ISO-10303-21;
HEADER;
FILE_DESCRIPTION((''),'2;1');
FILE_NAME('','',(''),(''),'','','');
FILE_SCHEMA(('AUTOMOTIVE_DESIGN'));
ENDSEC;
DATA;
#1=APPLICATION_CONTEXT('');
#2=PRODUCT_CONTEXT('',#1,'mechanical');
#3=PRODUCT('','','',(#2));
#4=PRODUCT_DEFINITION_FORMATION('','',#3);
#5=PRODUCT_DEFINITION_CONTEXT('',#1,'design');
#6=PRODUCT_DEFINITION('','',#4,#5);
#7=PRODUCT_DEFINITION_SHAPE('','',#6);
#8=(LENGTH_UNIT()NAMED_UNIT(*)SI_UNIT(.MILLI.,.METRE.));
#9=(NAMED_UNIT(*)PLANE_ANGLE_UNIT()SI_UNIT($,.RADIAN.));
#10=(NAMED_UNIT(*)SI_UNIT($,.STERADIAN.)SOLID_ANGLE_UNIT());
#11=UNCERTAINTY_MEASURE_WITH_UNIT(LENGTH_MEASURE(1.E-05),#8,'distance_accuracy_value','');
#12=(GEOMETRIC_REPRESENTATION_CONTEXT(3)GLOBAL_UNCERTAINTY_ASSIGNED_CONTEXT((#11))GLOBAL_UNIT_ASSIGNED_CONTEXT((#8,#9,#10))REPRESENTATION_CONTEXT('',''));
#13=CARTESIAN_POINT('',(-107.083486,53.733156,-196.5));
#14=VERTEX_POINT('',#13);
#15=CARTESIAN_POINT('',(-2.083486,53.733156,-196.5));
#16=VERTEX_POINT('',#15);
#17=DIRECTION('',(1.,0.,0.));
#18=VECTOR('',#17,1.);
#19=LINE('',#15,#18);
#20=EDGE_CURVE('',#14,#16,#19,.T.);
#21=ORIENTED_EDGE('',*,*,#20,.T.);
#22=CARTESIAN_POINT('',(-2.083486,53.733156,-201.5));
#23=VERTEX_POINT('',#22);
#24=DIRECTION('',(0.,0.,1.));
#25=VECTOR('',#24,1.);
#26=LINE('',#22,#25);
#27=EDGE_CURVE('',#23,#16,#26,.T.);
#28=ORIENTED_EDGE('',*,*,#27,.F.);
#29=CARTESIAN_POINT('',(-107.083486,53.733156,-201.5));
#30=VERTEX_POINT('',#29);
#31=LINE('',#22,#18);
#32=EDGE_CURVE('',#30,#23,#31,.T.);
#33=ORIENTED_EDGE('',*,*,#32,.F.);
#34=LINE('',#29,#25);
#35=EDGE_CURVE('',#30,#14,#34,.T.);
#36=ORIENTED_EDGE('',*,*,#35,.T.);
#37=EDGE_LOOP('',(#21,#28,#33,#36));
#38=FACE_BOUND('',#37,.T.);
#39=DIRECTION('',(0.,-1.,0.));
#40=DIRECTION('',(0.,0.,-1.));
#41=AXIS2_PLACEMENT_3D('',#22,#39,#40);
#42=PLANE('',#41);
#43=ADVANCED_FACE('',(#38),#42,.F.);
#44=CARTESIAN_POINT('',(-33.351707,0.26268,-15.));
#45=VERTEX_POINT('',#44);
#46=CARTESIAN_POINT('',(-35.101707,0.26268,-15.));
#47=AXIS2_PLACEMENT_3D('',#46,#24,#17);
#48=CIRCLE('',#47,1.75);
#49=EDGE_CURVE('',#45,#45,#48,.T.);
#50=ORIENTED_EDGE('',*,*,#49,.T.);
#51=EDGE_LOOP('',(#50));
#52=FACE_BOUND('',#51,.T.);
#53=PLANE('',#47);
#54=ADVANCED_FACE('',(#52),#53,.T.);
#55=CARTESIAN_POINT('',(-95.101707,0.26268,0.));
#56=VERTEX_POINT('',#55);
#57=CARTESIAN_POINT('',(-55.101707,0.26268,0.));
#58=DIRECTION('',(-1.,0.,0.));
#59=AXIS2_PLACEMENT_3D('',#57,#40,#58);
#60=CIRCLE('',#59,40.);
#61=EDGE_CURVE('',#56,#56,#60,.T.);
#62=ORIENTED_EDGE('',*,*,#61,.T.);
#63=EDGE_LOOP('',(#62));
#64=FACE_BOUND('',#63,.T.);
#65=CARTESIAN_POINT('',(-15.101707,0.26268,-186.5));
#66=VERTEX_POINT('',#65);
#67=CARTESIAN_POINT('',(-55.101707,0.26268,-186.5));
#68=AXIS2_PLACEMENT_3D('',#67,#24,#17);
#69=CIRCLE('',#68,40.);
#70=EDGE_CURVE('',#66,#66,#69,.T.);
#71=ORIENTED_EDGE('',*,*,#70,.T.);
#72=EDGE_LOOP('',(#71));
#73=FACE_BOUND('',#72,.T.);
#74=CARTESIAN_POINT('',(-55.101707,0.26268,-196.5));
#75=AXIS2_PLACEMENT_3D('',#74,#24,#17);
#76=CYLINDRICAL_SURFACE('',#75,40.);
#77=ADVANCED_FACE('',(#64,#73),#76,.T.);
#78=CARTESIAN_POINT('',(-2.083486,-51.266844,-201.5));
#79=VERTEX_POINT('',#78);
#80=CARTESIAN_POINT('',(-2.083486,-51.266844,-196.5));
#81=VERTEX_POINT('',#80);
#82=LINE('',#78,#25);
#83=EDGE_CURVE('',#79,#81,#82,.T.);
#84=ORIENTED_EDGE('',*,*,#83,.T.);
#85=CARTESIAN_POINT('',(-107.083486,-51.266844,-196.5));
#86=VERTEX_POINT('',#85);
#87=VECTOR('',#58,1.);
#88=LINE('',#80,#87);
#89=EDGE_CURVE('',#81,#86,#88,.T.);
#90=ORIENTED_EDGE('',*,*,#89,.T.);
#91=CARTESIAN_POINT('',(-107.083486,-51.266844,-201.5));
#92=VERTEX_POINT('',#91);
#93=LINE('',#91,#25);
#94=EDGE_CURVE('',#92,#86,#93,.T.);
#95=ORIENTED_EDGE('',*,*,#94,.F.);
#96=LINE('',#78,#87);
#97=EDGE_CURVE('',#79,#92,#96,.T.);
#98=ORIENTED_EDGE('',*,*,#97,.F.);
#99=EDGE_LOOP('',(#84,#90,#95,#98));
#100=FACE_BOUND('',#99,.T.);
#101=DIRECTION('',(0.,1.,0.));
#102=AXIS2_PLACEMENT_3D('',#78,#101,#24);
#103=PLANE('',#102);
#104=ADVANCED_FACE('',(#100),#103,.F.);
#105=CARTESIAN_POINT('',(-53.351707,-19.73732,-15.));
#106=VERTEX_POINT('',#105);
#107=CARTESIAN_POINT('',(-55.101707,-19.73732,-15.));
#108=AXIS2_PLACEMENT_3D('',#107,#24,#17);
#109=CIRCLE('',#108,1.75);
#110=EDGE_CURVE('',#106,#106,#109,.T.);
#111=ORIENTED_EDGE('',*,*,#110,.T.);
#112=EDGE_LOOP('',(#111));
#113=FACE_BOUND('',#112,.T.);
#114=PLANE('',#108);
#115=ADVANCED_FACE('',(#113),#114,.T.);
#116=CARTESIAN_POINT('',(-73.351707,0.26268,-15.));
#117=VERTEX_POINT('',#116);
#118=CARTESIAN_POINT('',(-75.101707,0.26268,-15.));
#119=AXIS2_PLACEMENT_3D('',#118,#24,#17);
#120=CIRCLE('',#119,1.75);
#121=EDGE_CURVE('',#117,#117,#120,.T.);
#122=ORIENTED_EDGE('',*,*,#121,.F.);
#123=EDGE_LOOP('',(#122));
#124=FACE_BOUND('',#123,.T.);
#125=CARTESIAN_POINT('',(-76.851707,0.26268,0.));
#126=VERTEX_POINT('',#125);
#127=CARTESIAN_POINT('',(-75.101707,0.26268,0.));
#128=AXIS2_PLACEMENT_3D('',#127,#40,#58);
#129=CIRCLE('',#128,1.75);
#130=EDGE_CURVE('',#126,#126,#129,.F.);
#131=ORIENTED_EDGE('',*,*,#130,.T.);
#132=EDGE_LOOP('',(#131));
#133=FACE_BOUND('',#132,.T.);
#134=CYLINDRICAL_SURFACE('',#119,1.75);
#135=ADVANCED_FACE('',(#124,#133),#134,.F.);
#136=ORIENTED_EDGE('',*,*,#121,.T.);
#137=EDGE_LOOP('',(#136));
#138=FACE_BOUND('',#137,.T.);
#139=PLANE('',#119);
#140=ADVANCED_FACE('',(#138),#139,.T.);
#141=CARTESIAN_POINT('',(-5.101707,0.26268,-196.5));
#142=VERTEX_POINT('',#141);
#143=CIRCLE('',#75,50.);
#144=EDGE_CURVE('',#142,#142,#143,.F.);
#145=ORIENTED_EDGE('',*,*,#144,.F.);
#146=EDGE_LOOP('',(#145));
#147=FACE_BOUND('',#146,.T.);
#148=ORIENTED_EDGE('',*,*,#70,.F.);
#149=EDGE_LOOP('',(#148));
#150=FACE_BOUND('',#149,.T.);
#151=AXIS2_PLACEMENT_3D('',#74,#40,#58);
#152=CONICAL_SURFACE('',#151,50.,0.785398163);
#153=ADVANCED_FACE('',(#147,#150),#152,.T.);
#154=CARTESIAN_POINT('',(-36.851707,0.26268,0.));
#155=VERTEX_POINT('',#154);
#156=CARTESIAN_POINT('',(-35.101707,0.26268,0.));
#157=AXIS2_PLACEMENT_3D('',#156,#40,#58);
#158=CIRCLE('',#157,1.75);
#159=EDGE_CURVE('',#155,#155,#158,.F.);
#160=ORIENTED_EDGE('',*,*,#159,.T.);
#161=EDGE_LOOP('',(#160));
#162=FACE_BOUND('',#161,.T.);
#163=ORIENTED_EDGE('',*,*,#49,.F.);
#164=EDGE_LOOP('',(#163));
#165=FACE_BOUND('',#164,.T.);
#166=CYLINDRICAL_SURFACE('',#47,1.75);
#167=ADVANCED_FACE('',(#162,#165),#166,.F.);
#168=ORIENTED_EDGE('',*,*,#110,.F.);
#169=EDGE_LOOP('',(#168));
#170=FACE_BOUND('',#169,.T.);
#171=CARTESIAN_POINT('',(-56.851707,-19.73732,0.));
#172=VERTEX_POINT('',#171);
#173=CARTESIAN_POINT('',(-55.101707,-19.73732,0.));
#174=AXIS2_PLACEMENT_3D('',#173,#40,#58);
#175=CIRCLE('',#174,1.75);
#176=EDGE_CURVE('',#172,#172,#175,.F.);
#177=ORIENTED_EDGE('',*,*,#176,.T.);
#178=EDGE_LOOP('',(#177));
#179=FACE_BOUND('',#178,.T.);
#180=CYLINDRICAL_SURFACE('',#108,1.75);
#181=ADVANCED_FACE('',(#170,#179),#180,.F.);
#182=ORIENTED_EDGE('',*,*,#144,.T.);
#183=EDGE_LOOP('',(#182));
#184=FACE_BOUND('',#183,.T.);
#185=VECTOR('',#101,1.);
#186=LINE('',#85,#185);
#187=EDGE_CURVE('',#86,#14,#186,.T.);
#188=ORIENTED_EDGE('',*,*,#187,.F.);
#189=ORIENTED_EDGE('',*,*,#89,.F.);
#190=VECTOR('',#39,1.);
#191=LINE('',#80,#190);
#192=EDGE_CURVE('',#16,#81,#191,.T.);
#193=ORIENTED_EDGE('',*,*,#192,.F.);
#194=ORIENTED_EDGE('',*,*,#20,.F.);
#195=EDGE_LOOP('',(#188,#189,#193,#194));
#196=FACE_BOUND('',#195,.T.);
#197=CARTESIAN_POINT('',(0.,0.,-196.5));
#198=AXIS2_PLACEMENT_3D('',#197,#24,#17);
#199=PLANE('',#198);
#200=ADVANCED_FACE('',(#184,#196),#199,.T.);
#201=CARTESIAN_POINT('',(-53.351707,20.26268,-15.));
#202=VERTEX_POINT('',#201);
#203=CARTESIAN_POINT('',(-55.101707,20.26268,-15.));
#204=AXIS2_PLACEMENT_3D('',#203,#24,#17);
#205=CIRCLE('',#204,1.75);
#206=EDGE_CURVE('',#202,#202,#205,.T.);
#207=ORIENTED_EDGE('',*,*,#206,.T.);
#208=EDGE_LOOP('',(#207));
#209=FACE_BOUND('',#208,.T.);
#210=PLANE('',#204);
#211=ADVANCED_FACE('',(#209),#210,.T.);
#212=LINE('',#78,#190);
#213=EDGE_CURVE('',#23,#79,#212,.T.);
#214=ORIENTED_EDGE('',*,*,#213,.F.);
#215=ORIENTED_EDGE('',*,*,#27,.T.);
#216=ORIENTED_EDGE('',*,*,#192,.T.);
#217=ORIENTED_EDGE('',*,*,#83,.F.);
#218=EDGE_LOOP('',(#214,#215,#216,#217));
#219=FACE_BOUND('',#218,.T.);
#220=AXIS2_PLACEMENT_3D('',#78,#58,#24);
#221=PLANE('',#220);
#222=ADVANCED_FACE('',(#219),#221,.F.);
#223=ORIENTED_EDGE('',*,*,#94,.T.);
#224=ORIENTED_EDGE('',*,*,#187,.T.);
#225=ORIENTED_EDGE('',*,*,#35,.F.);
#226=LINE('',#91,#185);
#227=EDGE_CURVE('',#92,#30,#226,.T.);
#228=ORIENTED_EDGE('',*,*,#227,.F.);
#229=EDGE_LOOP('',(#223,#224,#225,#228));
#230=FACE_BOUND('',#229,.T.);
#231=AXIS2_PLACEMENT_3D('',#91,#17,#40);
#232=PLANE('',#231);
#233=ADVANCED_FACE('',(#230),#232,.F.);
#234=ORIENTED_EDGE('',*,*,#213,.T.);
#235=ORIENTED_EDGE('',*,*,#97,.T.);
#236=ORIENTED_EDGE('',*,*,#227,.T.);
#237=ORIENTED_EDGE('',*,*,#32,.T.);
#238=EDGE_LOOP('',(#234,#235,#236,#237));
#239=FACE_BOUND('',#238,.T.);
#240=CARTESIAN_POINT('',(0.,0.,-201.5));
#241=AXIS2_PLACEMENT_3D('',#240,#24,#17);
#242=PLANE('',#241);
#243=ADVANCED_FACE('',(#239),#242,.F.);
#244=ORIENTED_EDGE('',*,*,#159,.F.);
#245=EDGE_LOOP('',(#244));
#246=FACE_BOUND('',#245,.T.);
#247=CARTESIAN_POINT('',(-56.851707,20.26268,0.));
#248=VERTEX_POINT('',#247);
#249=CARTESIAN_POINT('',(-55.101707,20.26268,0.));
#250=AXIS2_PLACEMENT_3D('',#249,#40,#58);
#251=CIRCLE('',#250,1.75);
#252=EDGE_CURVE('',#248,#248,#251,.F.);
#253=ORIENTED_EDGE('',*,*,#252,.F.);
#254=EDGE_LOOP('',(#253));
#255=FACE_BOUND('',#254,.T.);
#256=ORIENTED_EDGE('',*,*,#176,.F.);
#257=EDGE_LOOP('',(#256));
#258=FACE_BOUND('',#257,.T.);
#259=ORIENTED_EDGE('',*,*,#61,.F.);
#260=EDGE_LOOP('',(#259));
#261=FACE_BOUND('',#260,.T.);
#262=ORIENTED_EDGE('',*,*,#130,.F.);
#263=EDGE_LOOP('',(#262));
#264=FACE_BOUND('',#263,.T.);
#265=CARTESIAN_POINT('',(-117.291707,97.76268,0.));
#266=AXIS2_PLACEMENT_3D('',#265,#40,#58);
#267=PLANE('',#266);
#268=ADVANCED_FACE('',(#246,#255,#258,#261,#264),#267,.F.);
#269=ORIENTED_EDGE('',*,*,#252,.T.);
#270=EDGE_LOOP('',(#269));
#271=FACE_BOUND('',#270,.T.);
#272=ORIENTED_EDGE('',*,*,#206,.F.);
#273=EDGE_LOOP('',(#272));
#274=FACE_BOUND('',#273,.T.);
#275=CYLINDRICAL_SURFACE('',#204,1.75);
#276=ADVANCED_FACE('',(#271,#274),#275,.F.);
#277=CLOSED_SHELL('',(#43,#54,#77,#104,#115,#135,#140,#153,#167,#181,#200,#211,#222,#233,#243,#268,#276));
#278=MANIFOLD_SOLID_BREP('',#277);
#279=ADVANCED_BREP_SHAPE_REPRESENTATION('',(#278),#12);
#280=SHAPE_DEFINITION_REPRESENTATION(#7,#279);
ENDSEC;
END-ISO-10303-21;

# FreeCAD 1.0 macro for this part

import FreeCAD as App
import Part
import Sketcher


def edges_at(feature, points):
    """Names of the edges that pass closest to the given points."""
    edges = feature.Shape.Edges
    near = lambda p: min(range(len(edges)), key=lambda i: edges[i].distToShape(Part.Vertex(*p))[0])
    return sorted({f"Edge{near(p) + 1}" for p in points})

doc = App.newDocument("Part")
body = doc.addObject("PartDesign::Body", "Body")

# Sketch on XY plane
sketch1 = body.newObject("Sketcher::SketchObject", "Sketch")
sketch1.AttachmentSupport = (doc.getObject("XY_Plane"), [""])
sketch1.MapMode = "FlatFace"
sketch1.addGeometry(Part.LineSegment(App.Vector(-117.291707, 97.76268, 0), App.Vector(-117.291707, -97.23732, 0)), False)
sketch1.addGeometry(Part.LineSegment(App.Vector(-117.291707, -97.23732, 0), App.Vector(131.468293, -97.23732, 0)), False)
sketch1.addGeometry(Part.LineSegment(App.Vector(131.468293, -97.23732, 0), App.Vector(131.468293, 97.76268, 0)), False)
sketch1.addGeometry(Part.LineSegment(App.Vector(131.468293, 97.76268, 0), App.Vector(-117.291707, 97.76268, 0)), False)
sketch1.addConstraint(Sketcher.Constraint("Coincident", 0, 2, 1, 1))
sketch1.addConstraint(Sketcher.Constraint("Coincident", 1, 2, 2, 1))
sketch1.addConstraint(Sketcher.Constraint("Coincident", 2, 2, 3, 1))
sketch1.addConstraint(Sketcher.Constraint("Coincident", 3, 2, 0, 1))
sketch1.addConstraint(Sketcher.Constraint("Vertical", 0))
sketch1.addConstraint(Sketcher.Constraint("Horizontal", 1))
sketch1.addConstraint(Sketcher.Constraint("Vertical", 2))
sketch1.addConstraint(Sketcher.Constraint("Horizontal", 3))
sketch1.addConstraint(Sketcher.Constraint("DistanceY", 0, 2, 0, 1, 195.0))
sketch1.addConstraint(Sketcher.Constraint("DistanceX", 1, 1, 1, 2, 248.76))
sketch1.addConstraint(Sketcher.Constraint("DistanceY", 0, 2, -1, 1, 97.23732))
sketch1.addConstraint(Sketcher.Constraint("DistanceX", 0, 2, -1, 1, 117.291707))
pad1 = body.newObject("PartDesign::Pad", "Pad")
pad1.Profile = sketch1
pad1.Length = 5

# Sketch on XY plane
sketch2 = body.newObject("Sketcher::SketchObject", "Sketch001")
sketch2.AttachmentSupport = (doc.getObject("XY_Plane"), [""])
sketch2.MapMode = "FlatFace"
sketch2.AttachmentOffset = App.Placement(App.Vector(0, 0, 5), App.Rotation())
sketch2.addGeometry(Part.LineSegment(App.Vector(-117.291707, -67.23732, 0), App.Vector(-117.291707, -97.23732, 0)), False)
sketch2.addGeometry(Part.LineSegment(App.Vector(-117.291707, -97.23732, 0), App.Vector(-69.291707, -97.23732, 0)), False)
sketch2.addGeometry(Part.LineSegment(App.Vector(-69.291707, -97.23732, 0), App.Vector(-69.291707, -67.23732, 0)), False)
sketch2.addGeometry(Part.LineSegment(App.Vector(-69.291707, -67.23732, 0), App.Vector(-117.291707, -67.23732, 0)), False)
sketch2.addGeometry(Part.LineSegment(App.Vector(101.468293, 97.76268, 0), App.Vector(101.468293, 67.76268, 0)), False)
sketch2.addGeometry(Part.LineSegment(App.Vector(101.468293, 67.76268, 0), App.Vector(131.468293, 67.76268, 0)), False)
sketch2.addGeometry(Part.LineSegment(App.Vector(131.468293, 67.76268, 0), App.Vector(131.468293, 97.76268, 0)), False)
sketch2.addGeometry(Part.LineSegment(App.Vector(131.468293, 97.76268, 0), App.Vector(101.468293, 97.76268, 0)), False)
sketch2.addGeometry(Part.LineSegment(App.Vector(101.468293, -67.23732, 0), App.Vector(101.468293, -97.23732, 0)), False)
sketch2.addGeometry(Part.LineSegment(App.Vector(101.468293, -97.23732, 0), App.Vector(131.468293, -97.23732, 0)), False)
sketch2.addGeometry(Part.LineSegment(App.Vector(131.468293, -97.23732, 0), App.Vector(131.468293, -67.23732, 0)), False)
sketch2.addGeometry(Part.LineSegment(App.Vector(131.468293, -67.23732, 0), App.Vector(101.468293, -67.23732, 0)), False)
sketch2.addGeometry(Part.LineSegment(App.Vector(-117.291707, 97.76268, 0), App.Vector(-117.291707, 67.76268, 0)), False)
sketch2.addGeometry(Part.LineSegment(App.Vector(-117.291707, 67.76268, 0), App.Vector(-69.291707, 67.76268, 0)), False)
sketch2.addGeometry(Part.LineSegment(App.Vector(-69.291707, 67.76268, 0), App.Vector(-69.291707, 97.76268, 0)), False)
sketch2.addGeometry(Part.LineSegment(App.Vector(-69.291707, 97.76268, 0), App.Vector(-117.291707, 97.76268, 0)), False)
sketch2.addConstraint(Sketcher.Constraint("Coincident", 0, 2, 1, 1))
sketch2.addConstraint(Sketcher.Constraint("Coincident", 1, 2, 2, 1))
sketch2.addConstraint(Sketcher.Constraint("Coincident", 2, 2, 3, 1))
sketch2.addConstraint(Sketcher.Constraint("Coincident", 3, 2, 0, 1))
sketch2.addConstraint(Sketcher.Constraint("Coincident", 4, 2, 5, 1))
sketch2.addConstraint(Sketcher.Constraint("Coincident", 5, 2, 6, 1))
sketch2.addConstraint(Sketcher.Constraint("Coincident", 6, 2, 7, 1))
sketch2.addConstraint(Sketcher.Constraint("Coincident", 7, 2, 4, 1))
sketch2.addConstraint(Sketcher.Constraint("Coincident", 8, 2, 9, 1))
sketch2.addConstraint(Sketcher.Constraint("Coincident", 9, 2, 10, 1))
sketch2.addConstraint(Sketcher.Constraint("Coincident", 10, 2, 11, 1))
sketch2.addConstraint(Sketcher.Constraint("Coincident", 11, 2, 8, 1))
sketch2.addConstraint(Sketcher.Constraint("Coincident", 12, 2, 13, 1))
sketch2.addConstraint(Sketcher.Constraint("Coincident", 13, 2, 14, 1))
sketch2.addConstraint(Sketcher.Constraint("Coincident", 14, 2, 15, 1))
sketch2.addConstraint(Sketcher.Constraint("Coincident", 15, 2, 12, 1))
sketch2.addConstraint(Sketcher.Constraint("Vertical", 0))
sketch2.addConstraint(Sketcher.Constraint("Horizontal", 1))
sketch2.addConstraint(Sketcher.Constraint("Vertical", 2))
sketch2.addConstraint(Sketcher.Constraint("Horizontal", 3))
sketch2.addConstraint(Sketcher.Constraint("Vertical", 4))
sketch2.addConstraint(Sketcher.Constraint("Horizontal", 5))
sketch2.addConstraint(Sketcher.Constraint("Vertical", 6))
sketch2.addConstraint(Sketcher.Constraint("Horizontal", 7))
sketch2.addConstraint(Sketcher.Constraint("Vertical", 8))
sketch2.addConstraint(Sketcher.Constraint("Horizontal", 9))
sketch2.addConstraint(Sketcher.Constraint("Vertical", 10))
sketch2.addConstraint(Sketcher.Constraint("Horizontal", 11))
sketch2.addConstraint(Sketcher.Constraint("Vertical", 12))
sketch2.addConstraint(Sketcher.Constraint("Horizontal", 13))
sketch2.addConstraint(Sketcher.Constraint("Vertical", 14))
sketch2.addConstraint(Sketcher.Constraint("Horizontal", 15))
sketch2.addConstraint(Sketcher.Constraint("Horizontal", 1, 2, 8, 2))
sketch2.addConstraint(Sketcher.Constraint("Horizontal", 3, 2, 10, 2))
sketch2.addConstraint(Sketcher.Constraint("Horizontal", 5, 2, 12, 2))
sketch2.addConstraint(Sketcher.Constraint("Horizontal", 7, 2, 14, 2))
sketch2.addConstraint(Sketcher.Constraint("Vertical", 7, 2, 8, 2))
sketch2.addConstraint(Sketcher.Constraint("Vertical", 6, 2, 9, 2))
sketch2.addConstraint(Sketcher.Constraint("Vertical", 3, 2, 12, 2))
sketch2.addConstraint(Sketcher.Constraint("Vertical", 2, 2, 13, 2))
sketch2.addConstraint(Sketcher.Constraint("Equal", 11, 0))
sketch2.addConstraint(Sketcher.Constraint("Equal", 2, 4))
sketch2.addConstraint(Sketcher.Constraint("DistanceX", 1, 1, 1, 2, 48.0))
sketch2.addConstraint(Sketcher.Constraint("DistanceX", 5, 1, 5, 2, 30.0))
sketch2.addConstraint(Sketcher.Constraint("DistanceY", 2, 2, 4, 2, 135.0))
sketch2.addConstraint(Sketcher.Constraint("DistanceX", 2, 2, 4, 2, 170.76))
sketch2.addConstraint(Sketcher.Constraint("DistanceY", 0, 2, -1, 1, 97.23732))
sketch2.addConstraint(Sketcher.Constraint("DistanceX", 0, 2, -1, 1, 117.291707))
pocket1 = body.newObject("PartDesign::Pocket", "Pocket")
pocket1.Profile = sketch2
pocket1.Length = 2

# Sketch on XY plane
sketch3 = body.newObject("Sketcher::SketchObject", "Sketch002")
sketch3.AttachmentSupport = (doc.getObject("XY_Plane"), [""])
sketch3.MapMode = "FlatFace"
sketch3.AttachmentOffset = App.Placement(App.Vector(0, 0, 5), App.Rotation())
sketch3.addGeometry(Part.Circle(App.Vector(-93.291707, 83.76268, 0), App.Vector(0, 0, 1), 2.375), False)
sketch3.addGeometry(Part.Circle(App.Vector(-93.291707, -83.23732, 0), App.Vector(0, 0, 1), 2.375), False)
sketch3.addGeometry(Part.Circle(App.Vector(116.468293, 83.76268, 0), App.Vector(0, 0, 1), 2.375), False)
sketch3.addGeometry(Part.Circle(App.Vector(116.468293, -83.23732, 0), App.Vector(0, 0, 1), 2.375), False)
sketch3.addConstraint(Sketcher.Constraint("Equal", 0, 1))
sketch3.addConstraint(Sketcher.Constraint("Equal", 1, 2))
sketch3.addConstraint(Sketcher.Constraint("Equal", 2, 3))
sketch3.addConstraint(Sketcher.Constraint("Horizontal", 0, 3, 2, 3))
sketch3.addConstraint(Sketcher.Constraint("Horizontal", 1, 3, 3, 3))
sketch3.addConstraint(Sketcher.Constraint("Vertical", 0, 3, 1, 3))
sketch3.addConstraint(Sketcher.Constraint("Vertical", 2, 3, 3, 3))
sketch3.addConstraint(Sketcher.Constraint("Diameter", 0, 4.75))
sketch3.addConstraint(Sketcher.Constraint("DistanceY", 1, 3, 0, 3, 167.0))
sketch3.addConstraint(Sketcher.Constraint("DistanceX", 0, 3, 2, 3, 209.76))
sketch3.addConstraint(Sketcher.Constraint("DistanceY", -1, 1, 0, 3, 83.76268))
sketch3.addConstraint(Sketcher.Constraint("DistanceX", 0, 3, -1, 1, 93.291707))
pocket2 = body.newObject("PartDesign::Pocket", "Pocket001")
pocket2.Profile = sketch3
pocket2.Length = 10

# Sketch on XY plane
sketch4 = body.newObject("Sketcher::SketchObject", "Sketch003")
sketch4.AttachmentSupport = (doc.getObject("XY_Plane"), [""])
sketch4.MapMode = "FlatFace"
sketch4.addGeometry(Part.Circle(App.Vector(-55.101707, 0.26268, 0), App.Vector(0, 0, 1), 40), False)
sketch4.addConstraint(Sketcher.Constraint("Diameter", 0, 80.0))
sketch4.addConstraint(Sketcher.Constraint("DistanceY", -1, 1, 0, 3, 0.26268))
sketch4.addConstraint(Sketcher.Constraint("DistanceX", 0, 3, -1, 1, 55.101707))
pad2 = body.newObject("PartDesign::Pad", "Pad001")
pad2.Profile = sketch4
pad2.Length = 196.5
pad2.Reversed = True

# Sketch on XY plane
sketch5 = body.newObject("Sketcher::SketchObject", "Sketch004")
sketch5.AttachmentSupport = (doc.getObject("XY_Plane"), [""])
sketch5.MapMode = "FlatFace"
sketch5.addGeometry(Part.Circle(App.Vector(76.968293, 0.26268, 0), App.Vector(0, 0, 1), 12.5), False)
sketch5.addConstraint(Sketcher.Constraint("Diameter", 0, 25.0))
sketch5.addConstraint(Sketcher.Constraint("DistanceY", -1, 1, 0, 3, 0.26268))
sketch5.addConstraint(Sketcher.Constraint("DistanceX", -1, 1, 0, 3, 76.968293))
pocket3 = body.newObject("PartDesign::Pocket", "Pocket002")
pocket3.Profile = sketch5
pocket3.Length = 10
pocket3.Reversed = True

# Sketch on YZ plane
sketch6 = body.newObject("Sketcher::SketchObject", "Sketch005")
sketch6.AttachmentSupport = (doc.getObject("YZ_Plane"), [""])
sketch6.MapMode = "FlatFace"
sketch6.AttachmentOffset = App.Placement(App.Vector(0, 0, 7.088293), App.Rotation())
sketch6.addGeometry(Part.LineSegment(App.Vector(97.76268, 0, 0), App.Vector(67.76268, 0, 0)), False)
sketch6.addGeometry(Part.LineSegment(App.Vector(67.76268, 0, 0), App.Vector(67.76268, -12, 0)), False)
sketch6.addGeometry(Part.LineSegment(App.Vector(67.76268, -12, 0), App.Vector(97.76268, -12, 0)), False)
sketch6.addGeometry(Part.LineSegment(App.Vector(97.76268, -12, 0), App.Vector(97.76268, 0, 0)), False)
sketch6.addGeometry(Part.LineSegment(App.Vector(-67.23732, 0, 0), App.Vector(-97.23732, 0, 0)), False)
sketch6.addGeometry(Part.LineSegment(App.Vector(-97.23732, 0, 0), App.Vector(-97.23732, -12, 0)), False)
sketch6.addGeometry(Part.LineSegment(App.Vector(-97.23732, -12, 0), App.Vector(-67.23732, -12, 0)), False)
sketch6.addGeometry(Part.LineSegment(App.Vector(-67.23732, -12, 0), App.Vector(-67.23732, 0, 0)), False)
sketch6.addConstraint(Sketcher.Constraint("Coincident", 0, 2, 1, 1))
sketch6.addConstraint(Sketcher.Constraint("Coincident", 1, 2, 2, 1))
sketch6.addConstraint(Sketcher.Constraint("Coincident", 2, 2, 3, 1))
sketch6.addConstraint(Sketcher.Constraint("Coincident", 3, 2, 0, 1))
sketch6.addConstraint(Sketcher.Constraint("Coincident", 4, 2, 5, 1))
sketch6.addConstraint(Sketcher.Constraint("Coincident", 5, 2, 6, 1))
sketch6.addConstraint(Sketcher.Constraint("Coincident", 6, 2, 7, 1))
sketch6.addConstraint(Sketcher.Constraint("Coincident", 7, 2, 4, 1))
sketch6.addConstraint(Sketcher.Constraint("Horizontal", 0))
sketch6.addConstraint(Sketcher.Constraint("Vertical", 1))
sketch6.addConstraint(Sketcher.Constraint("Horizontal", 2))
sketch6.addConstraint(Sketcher.Constraint("Vertical", 3))
sketch6.addConstraint(Sketcher.Constraint("Horizontal", 4))
sketch6.addConstraint(Sketcher.Constraint("Vertical", 5))
sketch6.addConstraint(Sketcher.Constraint("Horizontal", 6))
sketch6.addConstraint(Sketcher.Constraint("Vertical", 7))
sketch6.addConstraint(Sketcher.Constraint("PointOnObject", 0, 2, -1))
sketch6.addConstraint(Sketcher.Constraint("PointOnObject", 4, 2, -1))
sketch6.addConstraint(Sketcher.Constraint("Horizontal", 2, 2, 5, 2))
sketch6.addConstraint(Sketcher.Constraint("Equal", 2, 4))
sketch6.addConstraint(Sketcher.Constraint("DistanceX", 0, 2, 0, 1, 30.0))
sketch6.addConstraint(Sketcher.Constraint("DistanceY", 1, 2, 1, 1, 12.0))
sketch6.addConstraint(Sketcher.Constraint("DistanceX", 4, 2, 0, 2, 165.0))
sketch6.addConstraint(Sketcher.Constraint("DistanceX", -1, 1, 0, 2, 67.76268))
pad3 = body.newObject("PartDesign::Pad", "Pad002")
pad3.Profile = sketch6
pad3.Length = 8
pad3.Midplane = True
doc.recompute()

fillet = body.newObject("PartDesign::Fillet", "Fillet")
fillet.Base = (pad3, edges_at(pad3, [(7.088, 67.763, 0), (7.088, -67.237, 0)]))
fillet.Radius = 10
doc.recompute()

fillet2 = body.newObject("PartDesign::Fillet", "Fillet001")
fillet2.Base = (fillet, edges_at(fillet, [(7.088, 67.763, -12), (7.088, -67.237, -12)]))
fillet2.Radius = 10
doc.recompute()

fillet3 = body.newObject("PartDesign::Fillet", "Fillet002")
fillet3.Base = (fillet2, edges_at(fillet2, [(7.088, 97.763, -12), (7.088, -97.237, -12)]))
fillet3.Radius = 10

# Sketch on YZ plane
sketch7 = body.newObject("Sketcher::SketchObject", "Sketch006")
sketch7.AttachmentSupport = (doc.getObject("YZ_Plane"), [""])
sketch7.MapMode = "FlatFace"
sketch7.AttachmentOffset = App.Placement(App.Vector(0, 0, 11.088293), App.Rotation())
sketch7.addGeometry(Part.Circle(App.Vector(87.76268, -6, 0), App.Vector(0, 0, 1), 1.625), False)
sketch7.addGeometry(Part.Circle(App.Vector(77.76268, -6, 0), App.Vector(0, 0, 1), 1.625), False)
sketch7.addGeometry(Part.Circle(App.Vector(-77.23732, -6, 0), App.Vector(0, 0, 1), 1.625), False)
sketch7.addGeometry(Part.Circle(App.Vector(-87.23732, -6, 0), App.Vector(0, 0, 1), 1.625), False)
sketch7.addConstraint(Sketcher.Constraint("Equal", 0, 1))
sketch7.addConstraint(Sketcher.Constraint("Equal", 1, 2))
sketch7.addConstraint(Sketcher.Constraint("Equal", 2, 3))
sketch7.addConstraint(Sketcher.Constraint("Horizontal", 0, 3, 1, 3))
sketch7.addConstraint(Sketcher.Constraint("Horizontal", 1, 3, 2, 3))
sketch7.addConstraint(Sketcher.Constraint("Horizontal", 2, 3, 3, 3))
sketch7.addConstraint(Sketcher.Constraint("Diameter", 0, 3.25))
sketch7.addConstraint(Sketcher.Constraint("DistanceY", 0, 3, -1, 1, 6.0))
sketch7.addConstraint(Sketcher.Constraint("DistanceX", 1, 3, 0, 3, 10.0))
sketch7.addConstraint(Sketcher.Constraint("DistanceX", 2, 3, 1, 3, 155.0))
sketch7.addConstraint(Sketcher.Constraint("DistanceX", 3, 3, 2, 3, 10.0))
sketch7.addConstraint(Sketcher.Constraint("DistanceX", -1, 1, 0, 3, 87.76268))
pocket4 = body.newObject("PartDesign::Pocket", "Pocket003")
pocket4.Profile = sketch7
pocket4.Type = "ThroughAll"
pocket4.Midplane = True

# Sketch on XY plane
sketch8 = body.newObject("Sketcher::SketchObject", "Sketch007")
sketch8.AttachmentSupport = (doc.getObject("XY_Plane"), [""])
sketch8.MapMode = "FlatFace"
sketch8.AttachmentOffset = App.Placement(App.Vector(0, 0, 5), App.Rotation())
sketch8.addGeometry(Part.LineSegment(App.Vector(131.468293, 67.76268, 0), App.Vector(111.468293, 67.76268, 0)), False)
sketch8.addGeometry(Part.LineSegment(App.Vector(111.468293, 67.76268, 0), App.Vector(111.468293, 60.01268, 0)), False)
sketch8.addGeometry(Part.LineSegment(App.Vector(111.468293, 60.01268, 0), App.Vector(125.218293, 60.01268, 0)), False)
sketch8.addGeometry(Part.LineSegment(App.Vector(125.218293, 60.01268, 0), App.Vector(125.218293, -59.48732, 0)), False)
sketch8.addGeometry(Part.LineSegment(App.Vector(125.218293, -59.48732, 0), App.Vector(111.468293, -59.48732, 0)), False)
sketch8.addGeometry(Part.LineSegment(App.Vector(111.468293, -59.48732, 0), App.Vector(111.468293, -67.23732, 0)), False)
sketch8.addGeometry(Part.LineSegment(App.Vector(111.468293, -67.23732, 0), App.Vector(131.468293, -67.23732, 0)), False)
sketch8.addGeometry(Part.LineSegment(App.Vector(131.468293, -67.23732, 0), App.Vector(131.468293, 67.76268, 0)), False)
sketch8.addConstraint(Sketcher.Constraint("Coincident", 0, 2, 1, 1))
sketch8.addConstraint(Sketcher.Constraint("Coincident", 1, 2, 2, 1))
sketch8.addConstraint(Sketcher.Constraint("Coincident", 2, 2, 3, 1))
sketch8.addConstraint(Sketcher.Constraint("Coincident", 3, 2, 4, 1))
sketch8.addConstraint(Sketcher.Constraint("Coincident", 4, 2, 5, 1))
sketch8.addConstraint(Sketcher.Constraint("Coincident", 5, 2, 6, 1))
sketch8.addConstraint(Sketcher.Constraint("Coincident", 6, 2, 7, 1))
sketch8.addConstraint(Sketcher.Constraint("Coincident", 7, 2, 0, 1))
sketch8.addConstraint(Sketcher.Constraint("Horizontal", 0))
sketch8.addConstraint(Sketcher.Constraint("Vertical", 1))
sketch8.addConstraint(Sketcher.Constraint("Horizontal", 2))
sketch8.addConstraint(Sketcher.Constraint("Vertical", 3))
sketch8.addConstraint(Sketcher.Constraint("Horizontal", 4))
sketch8.addConstraint(Sketcher.Constraint("Vertical", 5))
sketch8.addConstraint(Sketcher.Constraint("Horizontal", 6))
sketch8.addConstraint(Sketcher.Constraint("Vertical", 7))
sketch8.addConstraint(Sketcher.Constraint("Vertical", 1, 2, 4, 2))
sketch8.addConstraint(Sketcher.Constraint("Equal", 1, 5))
sketch8.addConstraint(Sketcher.Constraint("DistanceX", 0, 2, 0, 1, 20.0))
sketch8.addConstraint(Sketcher.Constraint("DistanceY", 7, 1, 7, 2, 135.0))
sketch8.addConstraint(Sketcher.Constraint("DistanceY", 3, 2, 3, 1, 119.5))
sketch8.addConstraint(Sketcher.Constraint("DistanceX", 2, 1, 2, 2, 13.75))
sketch8.addConstraint(Sketcher.Constraint("DistanceY", -1, 1, 0, 2, 67.76268))
sketch8.addConstraint(Sketcher.Constraint("DistanceX", -1, 1, 0, 2, 111.468293))
pocket5 = body.newObject("PartDesign::Pocket", "Pocket004")
pocket5.Profile = sketch8
pocket5.Length = 2

# Sketch on XY plane
sketch9 = body.newObject("Sketcher::SketchObject", "Sketch008")
sketch9.AttachmentSupport = (doc.getObject("XY_Plane"), [""])
sketch9.MapMode = "FlatFace"
sketch9.AttachmentOffset = App.Placement(App.Vector(0, 0, 5), App.Rotation())
sketch9.addGeometry(Part.Circle(App.Vector(-55.101707, 20.26268, 0), App.Vector(0, 0, 1), 1.75), False)
sketch9.addGeometry(Part.Circle(App.Vector(-35.101707, 0.26268, 0), App.Vector(0, 0, 1), 1.75), False)
sketch9.addGeometry(Part.Circle(App.Vector(-55.101707, -19.73732, 0), App.Vector(0, 0, 1), 1.75), False)
sketch9.addGeometry(Part.Circle(App.Vector(-75.101707, 0.26268, 0), App.Vector(0, 0, 1), 1.75), False)
sketch9.addConstraint(Sketcher.Constraint("Equal", 0, 1))
sketch9.addConstraint(Sketcher.Constraint("Equal", 1, 2))
sketch9.addConstraint(Sketcher.Constraint("Equal", 2, 3))
sketch9.addConstraint(Sketcher.Constraint("Horizontal", 1, 3, 3, 3))
sketch9.addConstraint(Sketcher.Constraint("Vertical", 0, 3, 2, 3))
sketch9.addConstraint(Sketcher.Constraint("Diameter", 0, 3.5))
sketch9.addConstraint(Sketcher.Constraint("DistanceX", 0, 3, 1, 3, 20.0))
sketch9.addConstraint(Sketcher.Constraint("DistanceY", 1, 3, 0, 3, 20.0))
sketch9.addConstraint(Sketcher.Constraint("DistanceY", 2, 3, 1, 3, 20.0))
sketch9.addConstraint(Sketcher.Constraint("DistanceX", 3, 3, 0, 3, 20.0))
sketch9.addConstraint(Sketcher.Constraint("DistanceY", -1, 1, 0, 3, 20.26268))
sketch9.addConstraint(Sketcher.Constraint("DistanceX", 0, 3, -1, 1, 55.101707))
pocket6 = body.newObject("PartDesign::Pocket", "Pocket005")
pocket6.Profile = sketch9
pocket6.Length = 20

# Sketch on XZ plane
sketch10 = body.newObject("Sketcher::SketchObject", "Sketch009")
sketch10.AttachmentSupport = (doc.getObject("XZ_Plane"), [""])
sketch10.MapMode = "FlatFace"
sketch10.AttachmentOffset = App.Placement(App.Vector(0, 0, 97.23732), App.Rotation())
sketch10.addGeometry(Part.LineSegment(App.Vector(-117.291707, 10.531535, 0), App.Vector(-117.291707, 0, 0)), False)
sketch10.addGeometry(Part.LineSegment(App.Vector(-117.291707, 0, 0), App.Vector(3.088293, 0, 0)), False)
sketch10.addGeometry(Part.LineSegment(App.Vector(3.088293, 0, 0), App.Vector(3.088293, -12, 0)), False)
sketch10.addGeometry(Part.LineSegment(App.Vector(3.088293, -12, 0), App.Vector(11.088293, -12, 0)), False)
sketch10.addGeometry(Part.LineSegment(App.Vector(11.088293, -12, 0), App.Vector(11.088293, 0, 0)), False)
sketch10.addGeometry(Part.LineSegment(App.Vector(11.088293, 0, 0), App.Vector(131.468293, 0, 0)), False)
sketch10.addGeometry(Part.LineSegment(App.Vector(131.468293, 0, 0), App.Vector(131.468293, 10.531535, 0)), False)
sketch10.addGeometry(Part.LineSegment(App.Vector(131.468293, 10.531535, 0), App.Vector(-117.291707, 10.531535, 0)), False)
sketch10.addConstraint(Sketcher.Constraint("Coincident", 0, 2, 1, 1))
sketch10.addConstraint(Sketcher.Constraint("Coincident", 1, 2, 2, 1))
sketch10.addConstraint(Sketcher.Constraint("Coincident", 2, 2, 3, 1))
sketch10.addConstraint(Sketcher.Constraint("Coincident", 3, 2, 4, 1))
sketch10.addConstraint(Sketcher.Constraint("Coincident", 4, 2, 5, 1))
sketch10.addConstraint(Sketcher.Constraint("Coincident", 5, 2, 6, 1))
sketch10.addConstraint(Sketcher.Constraint("Coincident", 6, 2, 7, 1))
sketch10.addConstraint(Sketcher.Constraint("Coincident", 7, 2, 0, 1))
sketch10.addConstraint(Sketcher.Constraint("Vertical", 0))
sketch10.addConstraint(Sketcher.Constraint("Horizontal", 1))
sketch10.addConstraint(Sketcher.Constraint("Vertical", 2))
sketch10.addConstraint(Sketcher.Constraint("Horizontal", 3))
sketch10.addConstraint(Sketcher.Constraint("Vertical", 4))
sketch10.addConstraint(Sketcher.Constraint("Horizontal", 5))
sketch10.addConstraint(Sketcher.Constraint("Vertical", 6))
sketch10.addConstraint(Sketcher.Constraint("Horizontal", 7))
sketch10.addConstraint(Sketcher.Constraint("PointOnObject", 0, 2, -1))
sketch10.addConstraint(Sketcher.Constraint("PointOnObject", 4, 2, -1))
sketch10.addConstraint(Sketcher.Constraint("Equal", 1, 5))
sketch10.addConstraint(Sketcher.Constraint("DistanceX", 3, 1, 3, 2, 8.0))
sketch10.addConstraint(Sketcher.Constraint("DistanceY", 2, 2, 2, 1, 12.0))
sketch10.addConstraint(Sketcher.Constraint("DistanceX", 1, 1, 1, 2, 120.38))
sketch10.addConstraint(Sketcher.Constraint("DistanceY", 0, 2, 0, 1, 10.531535))
sketch10.addConstraint(Sketcher.Constraint("DistanceX", 0, 2, -1, 1, 117.291707))
pocket7 = body.newObject("PartDesign::Pocket", "Pocket006")
pocket7.Profile = sketch10
pocket7.Type = "ThroughAll"
pocket7.Midplane = True

# Sketch on XY plane
sketch11 = body.newObject("Sketcher::SketchObject", "Sketch010")
sketch11.AttachmentSupport = (doc.getObject("XY_Plane"), [""])
sketch11.MapMode = "FlatFace"
sketch11.AttachmentOffset = App.Placement(App.Vector(0, 0, -196.5), App.Rotation())
sketch11.addGeometry(Part.LineSegment(App.Vector(-2.083486, 53.733156, 0), App.Vector(-2.083486, -51.266844, 0)), False)
sketch11.addGeometry(Part.LineSegment(App.Vector(-2.083486, -51.266844, 0), App.Vector(-107.083486, -51.266844, 0)), False)
sketch11.addGeometry(Part.LineSegment(App.Vector(-107.083486, -51.266844, 0), App.Vector(-107.083486, 53.733156, 0)), False)
sketch11.addGeometry(Part.LineSegment(App.Vector(-107.083486, 53.733156, 0), App.Vector(-2.083486, 53.733156, 0)), False)
sketch11.addConstraint(Sketcher.Constraint("Coincident", 0, 2, 1, 1))
sketch11.addConstraint(Sketcher.Constraint("Coincident", 1, 2, 2, 1))
sketch11.addConstraint(Sketcher.Constraint("Coincident", 2, 2, 3, 1))
sketch11.addConstraint(Sketcher.Constraint("Coincident", 3, 2, 0, 1))
sketch11.addConstraint(Sketcher.Constraint("Vertical", 0))
sketch11.addConstraint(Sketcher.Constraint("Horizontal", 1))
sketch11.addConstraint(Sketcher.Constraint("Vertical", 2))
sketch11.addConstraint(Sketcher.Constraint("Horizontal", 3))
sketch11.addConstraint(Sketcher.Constraint("Equal", 3, 0))
sketch11.addConstraint(Sketcher.Constraint("DistanceX", 1, 2, 1, 1, 105.0))
sketch11.addConstraint(Sketcher.Constraint("DistanceX", 0, 2, -1, 1, 2.083486))
sketch11.addConstraint(Sketcher.Constraint("DistanceY", 0, 2, -1, 1, 51.266844))
pad4 = body.newObject("PartDesign::Pad", "Pad003")
pad4.Profile = sketch11
pad4.Length = 5
pad4.Reversed = True
doc.recompute()

chamfer = body.newObject("PartDesign::Chamfer", "Chamfer")
chamfer.Base = (pad4, edges_at(pad4, [(-95.102, 0.263, -196.5)]))
chamfer.Size = 10

doc.recompute()
